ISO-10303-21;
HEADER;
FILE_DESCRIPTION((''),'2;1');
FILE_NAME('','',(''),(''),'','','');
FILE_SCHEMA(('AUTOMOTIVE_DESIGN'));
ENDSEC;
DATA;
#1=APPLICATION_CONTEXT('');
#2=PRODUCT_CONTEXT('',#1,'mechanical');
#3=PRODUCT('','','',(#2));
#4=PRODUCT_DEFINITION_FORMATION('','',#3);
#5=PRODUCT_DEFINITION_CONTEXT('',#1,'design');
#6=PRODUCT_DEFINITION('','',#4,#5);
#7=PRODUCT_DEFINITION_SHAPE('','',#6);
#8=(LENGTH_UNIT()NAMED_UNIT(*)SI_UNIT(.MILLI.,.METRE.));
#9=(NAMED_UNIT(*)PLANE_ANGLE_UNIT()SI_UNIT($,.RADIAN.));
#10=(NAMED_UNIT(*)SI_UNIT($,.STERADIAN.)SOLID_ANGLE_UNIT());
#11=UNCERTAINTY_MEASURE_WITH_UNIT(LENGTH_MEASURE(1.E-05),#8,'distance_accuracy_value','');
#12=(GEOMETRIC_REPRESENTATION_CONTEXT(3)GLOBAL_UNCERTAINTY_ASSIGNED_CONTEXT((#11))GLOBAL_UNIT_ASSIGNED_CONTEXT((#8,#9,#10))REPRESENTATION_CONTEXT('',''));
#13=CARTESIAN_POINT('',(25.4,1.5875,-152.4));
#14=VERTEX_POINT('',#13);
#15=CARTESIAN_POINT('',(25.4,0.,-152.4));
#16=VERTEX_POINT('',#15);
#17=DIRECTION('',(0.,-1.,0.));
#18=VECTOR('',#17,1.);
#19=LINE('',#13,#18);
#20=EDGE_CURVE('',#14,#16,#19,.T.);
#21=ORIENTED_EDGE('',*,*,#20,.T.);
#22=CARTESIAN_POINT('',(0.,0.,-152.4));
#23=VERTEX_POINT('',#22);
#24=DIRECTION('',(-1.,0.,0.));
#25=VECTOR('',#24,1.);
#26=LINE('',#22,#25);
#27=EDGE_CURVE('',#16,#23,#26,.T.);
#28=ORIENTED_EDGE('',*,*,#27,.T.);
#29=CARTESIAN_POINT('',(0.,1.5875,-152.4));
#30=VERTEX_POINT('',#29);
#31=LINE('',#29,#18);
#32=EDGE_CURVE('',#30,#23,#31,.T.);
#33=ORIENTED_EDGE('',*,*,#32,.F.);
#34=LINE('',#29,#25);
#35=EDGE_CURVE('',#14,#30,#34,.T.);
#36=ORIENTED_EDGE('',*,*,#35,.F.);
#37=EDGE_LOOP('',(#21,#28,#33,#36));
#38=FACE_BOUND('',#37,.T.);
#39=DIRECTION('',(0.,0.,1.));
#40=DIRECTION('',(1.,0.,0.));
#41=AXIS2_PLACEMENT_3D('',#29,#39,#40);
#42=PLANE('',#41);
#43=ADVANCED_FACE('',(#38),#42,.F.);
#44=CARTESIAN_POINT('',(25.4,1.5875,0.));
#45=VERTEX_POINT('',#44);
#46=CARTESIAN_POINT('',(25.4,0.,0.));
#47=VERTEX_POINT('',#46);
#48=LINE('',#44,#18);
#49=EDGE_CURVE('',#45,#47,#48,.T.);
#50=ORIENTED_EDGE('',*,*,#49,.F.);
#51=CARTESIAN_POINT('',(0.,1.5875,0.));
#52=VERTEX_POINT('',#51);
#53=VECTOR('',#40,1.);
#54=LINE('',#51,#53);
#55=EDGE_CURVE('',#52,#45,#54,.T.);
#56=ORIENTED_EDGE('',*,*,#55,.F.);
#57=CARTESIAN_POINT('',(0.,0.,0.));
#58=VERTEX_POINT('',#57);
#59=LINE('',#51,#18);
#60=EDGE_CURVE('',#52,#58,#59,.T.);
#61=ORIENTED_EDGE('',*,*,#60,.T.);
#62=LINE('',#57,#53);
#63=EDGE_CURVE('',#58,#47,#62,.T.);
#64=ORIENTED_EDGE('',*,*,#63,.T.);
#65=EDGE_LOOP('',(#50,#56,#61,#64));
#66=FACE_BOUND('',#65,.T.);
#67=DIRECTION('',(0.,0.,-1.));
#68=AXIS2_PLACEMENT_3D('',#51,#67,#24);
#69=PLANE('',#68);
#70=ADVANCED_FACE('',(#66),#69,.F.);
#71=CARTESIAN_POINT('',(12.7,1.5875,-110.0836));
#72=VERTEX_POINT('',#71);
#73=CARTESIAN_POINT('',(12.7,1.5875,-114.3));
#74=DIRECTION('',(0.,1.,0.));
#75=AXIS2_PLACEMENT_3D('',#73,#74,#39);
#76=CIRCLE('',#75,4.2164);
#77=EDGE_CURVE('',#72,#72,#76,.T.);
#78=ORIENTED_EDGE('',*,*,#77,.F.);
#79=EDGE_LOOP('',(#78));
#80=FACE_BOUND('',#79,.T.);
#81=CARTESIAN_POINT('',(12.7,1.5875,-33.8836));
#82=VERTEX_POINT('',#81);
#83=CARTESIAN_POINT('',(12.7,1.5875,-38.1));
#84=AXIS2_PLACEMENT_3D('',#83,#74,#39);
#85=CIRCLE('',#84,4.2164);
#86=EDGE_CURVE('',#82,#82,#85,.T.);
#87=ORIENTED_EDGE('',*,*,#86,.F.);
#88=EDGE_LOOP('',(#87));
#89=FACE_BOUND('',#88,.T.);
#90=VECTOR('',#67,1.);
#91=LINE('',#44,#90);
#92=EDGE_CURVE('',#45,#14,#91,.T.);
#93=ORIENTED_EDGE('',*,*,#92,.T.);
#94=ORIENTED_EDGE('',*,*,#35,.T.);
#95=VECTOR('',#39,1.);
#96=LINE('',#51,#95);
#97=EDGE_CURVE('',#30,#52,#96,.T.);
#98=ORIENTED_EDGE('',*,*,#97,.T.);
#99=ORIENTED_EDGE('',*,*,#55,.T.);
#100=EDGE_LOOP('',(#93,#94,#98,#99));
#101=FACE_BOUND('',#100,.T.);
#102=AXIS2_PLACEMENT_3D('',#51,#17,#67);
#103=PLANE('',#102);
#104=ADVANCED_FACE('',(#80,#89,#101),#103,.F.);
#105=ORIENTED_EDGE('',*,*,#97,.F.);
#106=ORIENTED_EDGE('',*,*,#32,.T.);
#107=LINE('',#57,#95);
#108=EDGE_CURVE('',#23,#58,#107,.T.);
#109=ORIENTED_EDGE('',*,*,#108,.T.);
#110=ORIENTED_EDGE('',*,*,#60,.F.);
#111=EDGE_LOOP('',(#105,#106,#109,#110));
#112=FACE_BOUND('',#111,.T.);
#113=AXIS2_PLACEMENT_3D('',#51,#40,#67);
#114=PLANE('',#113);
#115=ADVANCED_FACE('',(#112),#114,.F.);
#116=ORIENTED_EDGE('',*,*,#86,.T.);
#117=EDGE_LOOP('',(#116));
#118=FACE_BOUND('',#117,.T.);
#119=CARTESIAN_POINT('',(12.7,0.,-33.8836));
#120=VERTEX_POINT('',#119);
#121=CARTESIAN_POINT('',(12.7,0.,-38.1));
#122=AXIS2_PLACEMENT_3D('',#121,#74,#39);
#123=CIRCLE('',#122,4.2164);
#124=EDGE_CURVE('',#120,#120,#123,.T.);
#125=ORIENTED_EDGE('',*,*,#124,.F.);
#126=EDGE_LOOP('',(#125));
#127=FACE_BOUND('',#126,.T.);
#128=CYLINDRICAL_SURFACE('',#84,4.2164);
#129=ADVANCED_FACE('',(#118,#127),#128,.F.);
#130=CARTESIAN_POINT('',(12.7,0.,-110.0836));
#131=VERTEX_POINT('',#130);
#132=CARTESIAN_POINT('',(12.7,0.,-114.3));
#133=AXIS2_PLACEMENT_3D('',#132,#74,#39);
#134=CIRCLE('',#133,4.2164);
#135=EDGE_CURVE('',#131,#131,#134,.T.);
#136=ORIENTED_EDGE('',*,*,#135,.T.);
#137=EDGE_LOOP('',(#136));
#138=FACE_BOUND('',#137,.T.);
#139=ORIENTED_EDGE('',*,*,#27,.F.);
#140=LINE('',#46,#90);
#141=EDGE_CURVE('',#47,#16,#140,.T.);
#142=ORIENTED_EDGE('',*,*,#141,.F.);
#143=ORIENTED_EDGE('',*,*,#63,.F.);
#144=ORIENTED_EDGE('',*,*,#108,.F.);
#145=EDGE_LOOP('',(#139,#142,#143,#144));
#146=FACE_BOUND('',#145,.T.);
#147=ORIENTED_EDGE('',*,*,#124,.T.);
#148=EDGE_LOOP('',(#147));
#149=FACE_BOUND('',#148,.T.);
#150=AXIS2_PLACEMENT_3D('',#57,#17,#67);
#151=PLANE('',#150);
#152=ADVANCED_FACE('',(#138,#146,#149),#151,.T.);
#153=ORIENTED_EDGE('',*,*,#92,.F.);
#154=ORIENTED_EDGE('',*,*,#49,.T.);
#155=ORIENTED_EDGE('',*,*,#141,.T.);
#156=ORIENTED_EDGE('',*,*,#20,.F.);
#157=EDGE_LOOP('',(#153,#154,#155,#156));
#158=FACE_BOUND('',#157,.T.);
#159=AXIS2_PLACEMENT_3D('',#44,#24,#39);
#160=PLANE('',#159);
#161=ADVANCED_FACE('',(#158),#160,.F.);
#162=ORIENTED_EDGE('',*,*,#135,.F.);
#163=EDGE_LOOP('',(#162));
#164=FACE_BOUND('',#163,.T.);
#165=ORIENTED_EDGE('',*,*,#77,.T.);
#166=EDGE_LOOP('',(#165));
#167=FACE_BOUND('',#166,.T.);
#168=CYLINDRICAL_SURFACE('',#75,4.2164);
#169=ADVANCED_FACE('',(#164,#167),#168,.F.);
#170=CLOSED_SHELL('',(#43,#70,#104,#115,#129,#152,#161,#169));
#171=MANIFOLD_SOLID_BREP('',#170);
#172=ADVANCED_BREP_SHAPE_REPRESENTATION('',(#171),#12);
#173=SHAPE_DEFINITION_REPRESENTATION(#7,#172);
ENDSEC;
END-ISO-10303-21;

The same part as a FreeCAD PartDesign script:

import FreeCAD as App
import Part
import Sketcher

V = App.Vector
Q = App.Units.Quantity

doc = App.newDocument("Part")
body = doc.addObject("PartDesign::Body", "Body")

sketch1 = doc.addObject("Sketcher::SketchObject", "Sketch")
body.addObject(sketch1)
sketch1.AttachmentSupport = (doc.XZ_Plane, [""])
sketch1.MapMode = "FlatFace"
sketch1.addGeometry([
    Part.LineSegment(V(0, -152, 0), V(0, 0, 0)),
    Part.LineSegment(V(0, 0, 0), V(25, 0, 0)),
    Part.LineSegment(V(25, 0, 0), V(25, -152, 0)),
    Part.LineSegment(V(25, -152, 0), V(0, -152, 0)),
], False)
sketch1.addConstraint([
    Sketcher.Constraint("Coincident", 0, 2, 1, 1),
    Sketcher.Constraint("Coincident", 1, 2, 2, 1),
    Sketcher.Constraint("Coincident", 2, 2, 3, 1),
    Sketcher.Constraint("Coincident", 3, 2, 0, 1),
    Sketcher.Constraint("Vertical", 0),
    Sketcher.Constraint("Horizontal", 1),
    Sketcher.Constraint("Vertical", 2),
    Sketcher.Constraint("Horizontal", 3),
    Sketcher.Constraint("Coincident", 0, 2, -1, 1),
    Sketcher.Constraint("DistanceX", 1, 1, 1, 2, Q("1 in")),
    Sketcher.Constraint("DistanceY", 0, 1, 0, 2, Q("6 in")),
])
pad1 = doc.addObject("PartDesign::Pad", "Pad")
body.addObject(pad1)
pad1.Profile = sketch1
pad1.Length = Q("0.0625 in")
pad1.Reversed = True

sketch2 = doc.addObject("Sketcher::SketchObject", "Sketch001")
body.addObject(sketch2)
sketch2.AttachmentSupport = (doc.XZ_Plane, [""])
sketch2.MapMode = "FlatFace"
sketch2.AttachmentOffset = App.Placement(V(0, 0, -0.0625 * 25.4), App.Rotation())
sketch2.addGeometry([
    Part.Circle(V(12.7, -114.3, 0), V(0, 0, 1), 4.2),
    Part.Circle(V(12.7, -38.1, 0), V(0, 0, 1), 4.2),
], False)
sketch2.addConstraint([
    Sketcher.Constraint("Equal", 0, 1),
    Sketcher.Constraint("Vertical", 0, 3, 1, 3),
    Sketcher.Constraint("Diameter", 0, Q("0.332 in")),
    Sketcher.Constraint("DistanceY", 0, 3, 1, 3, Q("3 in")),
    Sketcher.Constraint("DistanceX", -1, 1, 0, 3, Q("0.5 in")),
    Sketcher.Constraint("DistanceY", 0, 3, -1, 1, Q("4.5 in")),
])
doc.recompute()
hole = doc.addObject("PartDesign::Hole", "Hole")
body.addObject(hole)
hole.Profile = sketch2
hole.ThreadType = "None"
hole.Diameter = Q("0.332 in")
hole.DepthType = "ThroughAll"
hole.Reversed = True

doc.recompute()
